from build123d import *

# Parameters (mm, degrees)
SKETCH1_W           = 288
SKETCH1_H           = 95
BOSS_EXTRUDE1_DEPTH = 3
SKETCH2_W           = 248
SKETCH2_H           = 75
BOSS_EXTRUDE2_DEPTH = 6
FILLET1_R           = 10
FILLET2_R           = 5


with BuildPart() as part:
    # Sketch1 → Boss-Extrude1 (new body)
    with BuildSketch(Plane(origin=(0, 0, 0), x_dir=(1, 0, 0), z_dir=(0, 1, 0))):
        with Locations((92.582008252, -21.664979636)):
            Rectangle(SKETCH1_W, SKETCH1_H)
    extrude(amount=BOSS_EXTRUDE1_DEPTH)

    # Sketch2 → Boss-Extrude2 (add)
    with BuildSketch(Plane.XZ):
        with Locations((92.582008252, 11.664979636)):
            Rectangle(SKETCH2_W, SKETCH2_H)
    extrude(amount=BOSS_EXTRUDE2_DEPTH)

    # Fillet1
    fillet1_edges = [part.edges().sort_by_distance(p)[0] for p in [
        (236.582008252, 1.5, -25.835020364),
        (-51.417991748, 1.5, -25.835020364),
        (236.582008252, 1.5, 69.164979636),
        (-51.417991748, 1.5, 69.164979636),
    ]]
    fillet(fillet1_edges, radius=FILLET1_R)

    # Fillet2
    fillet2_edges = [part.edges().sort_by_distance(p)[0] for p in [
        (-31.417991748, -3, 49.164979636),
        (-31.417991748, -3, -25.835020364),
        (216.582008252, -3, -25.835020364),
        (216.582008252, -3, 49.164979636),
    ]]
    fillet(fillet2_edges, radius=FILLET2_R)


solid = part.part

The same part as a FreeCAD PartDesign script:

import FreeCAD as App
import Part
import Sketcher
from FreeCAD import Vector
Q = App.Units.Quantity


def edges_at(feature, points):
    """Names of the edges that pass closest to the given points."""
    edges = feature.Shape.Edges
    near = lambda p: min(range(len(edges)), key=lambda i: edges[i].distToShape(Part.Vertex(*p))[0])
    return sorted({f"Edge{near(p) + 1}" for p in points})

doc = App.newDocument("Part")
body = doc.addObject("PartDesign::Body", "Body")

# Sketch on XZ plane
sketch1 = doc.addObject("Sketcher::SketchObject", "Sketch")
body.addObject(sketch1)
sketch1.AttachmentSupport = (doc.XZ_Plane, [""])
sketch1.MapMode = "FlatFace"
sketch1.addGeometry([
    Part.LineSegment(Vector(-51.417992, -25.83502, 0), Vector(-51.417992, 69.16498, 0)),
    Part.LineSegment(Vector(-51.417992, 69.16498, 0), Vector(236.582008, 69.16498, 0)),
    Part.LineSegment(Vector(236.582008, 69.16498, 0), Vector(236.582008, -25.83502, 0)),
    Part.LineSegment(Vector(236.582008, -25.83502, 0), Vector(-51.417992, -25.83502, 0)),
], False)
sketch1.addConstraint([
    Sketcher.Constraint("Coincident", 0, 2, 1, 1),
    Sketcher.Constraint("Coincident", 1, 2, 2, 1),
    Sketcher.Constraint("Coincident", 2, 2, 3, 1),
    Sketcher.Constraint("Coincident", 3, 2, 0, 1),
    Sketcher.Constraint("Vertical", 0),
    Sketcher.Constraint("Horizontal", 1),
    Sketcher.Constraint("Vertical", 2),
    Sketcher.Constraint("Horizontal", 3),
    Sketcher.Constraint("DistanceX", 1, 1, 1, 2, Q("288 mm")),
    Sketcher.Constraint("DistanceY", 0, 1, 0, 2, Q("95 mm")),
    Sketcher.Constraint("DistanceX", 0, 2, -1, 1, Q("51.417992 mm")),
    Sketcher.Constraint("DistanceY", -1, 1, 0, 2, Q("69.16498 mm")),
])
pad1 = doc.addObject("PartDesign::Pad", "Pad")
body.addObject(pad1)
pad1.Profile = sketch1
pad1.Length = 3
pad1.Reversed = True

# Sketch on XZ plane
sketch2 = doc.addObject("Sketcher::SketchObject", "Sketch001")
body.addObject(sketch2)
sketch2.AttachmentSupport = (doc.XZ_Plane, [""])
sketch2.MapMode = "FlatFace"
sketch2.addGeometry([
    Part.LineSegment(Vector(-31.417992, 49.16498, 0), Vector(-31.417992, -25.83502, 0)),
    Part.LineSegment(Vector(-31.417992, -25.83502, 0), Vector(216.582008, -25.83502, 0)),
    Part.LineSegment(Vector(216.582008, -25.83502, 0), Vector(216.582008, 49.16498, 0)),
    Part.LineSegment(Vector(216.582008, 49.16498, 0), Vector(-31.417992, 49.16498, 0)),
], False)
sketch2.addConstraint([
    Sketcher.Constraint("Coincident", 0, 2, 1, 1),
    Sketcher.Constraint("Coincident", 1, 2, 2, 1),
    Sketcher.Constraint("Coincident", 2, 2, 3, 1),
    Sketcher.Constraint("Coincident", 3, 2, 0, 1),
    Sketcher.Constraint("Vertical", 0),
    Sketcher.Constraint("Horizontal", 1),
    Sketcher.Constraint("Vertical", 2),
    Sketcher.Constraint("Horizontal", 3),
    Sketcher.Constraint("DistanceX", 1, 1, 1, 2, Q("248 mm")),
    Sketcher.Constraint("DistanceY", 0, 2, 0, 1, Q("75 mm")),
    Sketcher.Constraint("DistanceX", 0, 2, -1, 1, Q("31.417992 mm")),
    Sketcher.Constraint("DistanceY", 0, 2, -1, 1, Q("25.83502 mm")),
])
pad2 = doc.addObject("PartDesign::Pad", "Pad001")
body.addObject(pad2)
pad2.Profile = sketch2
pad2.Length = 6
doc.recompute()

fillet = doc.addObject("PartDesign::Fillet", "Fillet")
body.addObject(fillet)
fillet.Base = (pad2, edges_at(pad2, [
    (236.582, 1.5, -25.835),
    (-51.418, 1.5, -25.835),
    (236.582, 1.5, 69.165),
    (-51.418, 1.5, 69.165),
]))
fillet.Radius = 10
doc.recompute()

fillet2 = doc.addObject("PartDesign::Fillet", "Fillet001")
body.addObject(fillet2)
fillet2.Base = (fillet, edges_at(fillet, [
    (-31.418, -3, 49.165),
    (-31.418, -3, -25.835),
    (216.582, -3, -25.835),
    (216.582, -3, 49.165),
]))
fillet2.Radius = 5

doc.recompute()
